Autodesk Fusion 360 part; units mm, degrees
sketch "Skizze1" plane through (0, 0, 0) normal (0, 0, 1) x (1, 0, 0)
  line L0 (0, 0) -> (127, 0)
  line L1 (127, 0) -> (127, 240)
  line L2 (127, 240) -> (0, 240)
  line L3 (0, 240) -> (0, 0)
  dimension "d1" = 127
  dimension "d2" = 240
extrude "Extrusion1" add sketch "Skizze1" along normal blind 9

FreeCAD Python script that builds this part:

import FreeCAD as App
import Part
import Sketcher

V = App.Vector


def add_polygon(sketch, points):
    """Adds a closed chain of lines whose ends are joined by coincident constraints."""
    first, n = sketch.GeometryCount, len(points)
    for a, b in zip(points, points[1:] + points[:1]):
        sketch.addGeometry(Part.LineSegment(App.Vector(*a, 0), App.Vector(*b, 0)), False)
    for i in range(n):
        sketch.addConstraint(Sketcher.Constraint("Coincident", first + i, 2, first + (i + 1) % n, 1))

doc = App.newDocument("Part")
body = doc.addObject("PartDesign::Body", "Body")

sketch1 = body.newObject("Sketcher::SketchObject", "Sketch")
sketch1.AttachmentSupport = (doc.getObject("XY_Plane"), [""])
sketch1.MapMode = "FlatFace"
add_polygon(sketch1, [(0, 240), (0, 0), (127, 0), (127, 240)])
sketch1.addConstraint(Sketcher.Constraint("Vertical", 0))
sketch1.addConstraint(Sketcher.Constraint("Horizontal", 1))
sketch1.addConstraint(Sketcher.Constraint("Vertical", 2))
sketch1.addConstraint(Sketcher.Constraint("Horizontal", 3))
sketch1.addConstraint(Sketcher.Constraint("Coincident", 0, 2, -1, 1))
sketch1.addConstraint(Sketcher.Constraint("DistanceX", 1, 1, 1, 2, 127.0))
sketch1.addConstraint(Sketcher.Constraint("DistanceY", 0, 2, 0, 1, 240.0))
pad1 = body.newObject("PartDesign::Pad", "Pad")
pad1.Profile = sketch1
pad1.Length = 9

doc.recompute()
